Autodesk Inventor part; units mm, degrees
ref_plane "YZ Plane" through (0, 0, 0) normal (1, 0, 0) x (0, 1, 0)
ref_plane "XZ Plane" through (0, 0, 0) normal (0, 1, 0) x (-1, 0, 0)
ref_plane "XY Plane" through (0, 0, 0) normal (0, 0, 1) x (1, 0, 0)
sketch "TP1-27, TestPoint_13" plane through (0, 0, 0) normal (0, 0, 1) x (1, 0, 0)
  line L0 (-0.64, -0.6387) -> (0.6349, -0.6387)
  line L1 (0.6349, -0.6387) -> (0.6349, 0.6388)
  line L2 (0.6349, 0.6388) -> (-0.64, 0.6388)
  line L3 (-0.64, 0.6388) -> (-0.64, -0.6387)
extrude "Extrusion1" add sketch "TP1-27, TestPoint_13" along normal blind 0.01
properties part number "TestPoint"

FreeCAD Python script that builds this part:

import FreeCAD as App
import Part
import Sketcher
Q = App.Units.Quantity


def add_polygon(sketch, points):
    """Adds a closed chain of lines whose ends are joined by coincident constraints."""
    first, n = sketch.GeometryCount, len(points)
    for a, b in zip(points, points[1:] + points[:1]):
        sketch.addGeometry(Part.LineSegment(App.Vector(*a, 0), App.Vector(*b, 0)), False)
    for i in range(n):
        sketch.addConstraint(Sketcher.Constraint("Coincident", first + i, 2, first + (i + 1) % n, 1))

doc = App.newDocument("Part")
body = doc.addObject("PartDesign::Body", "Body")

sketch1 = body.newObject("Sketcher::SketchObject", "Sketch")
sketch1.AttachmentSupport = (doc.getObject("XY_Plane"), [""])
sketch1.MapMode = "FlatFace"
add_polygon(sketch1, [(-0.6, 0.6), (-0.6, -0.6), (0.6, -0.6), (0.6, 0.6)])
sketch1.addConstraint([
    Sketcher.Constraint("Vertical", 0),
    Sketcher.Constraint("Horizontal", 1),
    Sketcher.Constraint("Vertical", 2),
    Sketcher.Constraint("Horizontal", 3),
    Sketcher.Constraint("DistanceX", 1, 1, 1, 2, Q("1.275 mm")),
    Sketcher.Constraint("DistanceX", 0, 2, -1, 1, Q("0.64 mm")),
    Sketcher.Constraint("DistanceY", 0, 2, 0, 1, Q("1.2775 mm")),
    Sketcher.Constraint("DistanceY", 0, 2, -1, 1, Q("0.6387 mm")),
])
pad1 = body.newObject("PartDesign::Pad", "Pad")
pad1.Profile = sketch1
pad1.Length = 0.01

doc.recompute()
